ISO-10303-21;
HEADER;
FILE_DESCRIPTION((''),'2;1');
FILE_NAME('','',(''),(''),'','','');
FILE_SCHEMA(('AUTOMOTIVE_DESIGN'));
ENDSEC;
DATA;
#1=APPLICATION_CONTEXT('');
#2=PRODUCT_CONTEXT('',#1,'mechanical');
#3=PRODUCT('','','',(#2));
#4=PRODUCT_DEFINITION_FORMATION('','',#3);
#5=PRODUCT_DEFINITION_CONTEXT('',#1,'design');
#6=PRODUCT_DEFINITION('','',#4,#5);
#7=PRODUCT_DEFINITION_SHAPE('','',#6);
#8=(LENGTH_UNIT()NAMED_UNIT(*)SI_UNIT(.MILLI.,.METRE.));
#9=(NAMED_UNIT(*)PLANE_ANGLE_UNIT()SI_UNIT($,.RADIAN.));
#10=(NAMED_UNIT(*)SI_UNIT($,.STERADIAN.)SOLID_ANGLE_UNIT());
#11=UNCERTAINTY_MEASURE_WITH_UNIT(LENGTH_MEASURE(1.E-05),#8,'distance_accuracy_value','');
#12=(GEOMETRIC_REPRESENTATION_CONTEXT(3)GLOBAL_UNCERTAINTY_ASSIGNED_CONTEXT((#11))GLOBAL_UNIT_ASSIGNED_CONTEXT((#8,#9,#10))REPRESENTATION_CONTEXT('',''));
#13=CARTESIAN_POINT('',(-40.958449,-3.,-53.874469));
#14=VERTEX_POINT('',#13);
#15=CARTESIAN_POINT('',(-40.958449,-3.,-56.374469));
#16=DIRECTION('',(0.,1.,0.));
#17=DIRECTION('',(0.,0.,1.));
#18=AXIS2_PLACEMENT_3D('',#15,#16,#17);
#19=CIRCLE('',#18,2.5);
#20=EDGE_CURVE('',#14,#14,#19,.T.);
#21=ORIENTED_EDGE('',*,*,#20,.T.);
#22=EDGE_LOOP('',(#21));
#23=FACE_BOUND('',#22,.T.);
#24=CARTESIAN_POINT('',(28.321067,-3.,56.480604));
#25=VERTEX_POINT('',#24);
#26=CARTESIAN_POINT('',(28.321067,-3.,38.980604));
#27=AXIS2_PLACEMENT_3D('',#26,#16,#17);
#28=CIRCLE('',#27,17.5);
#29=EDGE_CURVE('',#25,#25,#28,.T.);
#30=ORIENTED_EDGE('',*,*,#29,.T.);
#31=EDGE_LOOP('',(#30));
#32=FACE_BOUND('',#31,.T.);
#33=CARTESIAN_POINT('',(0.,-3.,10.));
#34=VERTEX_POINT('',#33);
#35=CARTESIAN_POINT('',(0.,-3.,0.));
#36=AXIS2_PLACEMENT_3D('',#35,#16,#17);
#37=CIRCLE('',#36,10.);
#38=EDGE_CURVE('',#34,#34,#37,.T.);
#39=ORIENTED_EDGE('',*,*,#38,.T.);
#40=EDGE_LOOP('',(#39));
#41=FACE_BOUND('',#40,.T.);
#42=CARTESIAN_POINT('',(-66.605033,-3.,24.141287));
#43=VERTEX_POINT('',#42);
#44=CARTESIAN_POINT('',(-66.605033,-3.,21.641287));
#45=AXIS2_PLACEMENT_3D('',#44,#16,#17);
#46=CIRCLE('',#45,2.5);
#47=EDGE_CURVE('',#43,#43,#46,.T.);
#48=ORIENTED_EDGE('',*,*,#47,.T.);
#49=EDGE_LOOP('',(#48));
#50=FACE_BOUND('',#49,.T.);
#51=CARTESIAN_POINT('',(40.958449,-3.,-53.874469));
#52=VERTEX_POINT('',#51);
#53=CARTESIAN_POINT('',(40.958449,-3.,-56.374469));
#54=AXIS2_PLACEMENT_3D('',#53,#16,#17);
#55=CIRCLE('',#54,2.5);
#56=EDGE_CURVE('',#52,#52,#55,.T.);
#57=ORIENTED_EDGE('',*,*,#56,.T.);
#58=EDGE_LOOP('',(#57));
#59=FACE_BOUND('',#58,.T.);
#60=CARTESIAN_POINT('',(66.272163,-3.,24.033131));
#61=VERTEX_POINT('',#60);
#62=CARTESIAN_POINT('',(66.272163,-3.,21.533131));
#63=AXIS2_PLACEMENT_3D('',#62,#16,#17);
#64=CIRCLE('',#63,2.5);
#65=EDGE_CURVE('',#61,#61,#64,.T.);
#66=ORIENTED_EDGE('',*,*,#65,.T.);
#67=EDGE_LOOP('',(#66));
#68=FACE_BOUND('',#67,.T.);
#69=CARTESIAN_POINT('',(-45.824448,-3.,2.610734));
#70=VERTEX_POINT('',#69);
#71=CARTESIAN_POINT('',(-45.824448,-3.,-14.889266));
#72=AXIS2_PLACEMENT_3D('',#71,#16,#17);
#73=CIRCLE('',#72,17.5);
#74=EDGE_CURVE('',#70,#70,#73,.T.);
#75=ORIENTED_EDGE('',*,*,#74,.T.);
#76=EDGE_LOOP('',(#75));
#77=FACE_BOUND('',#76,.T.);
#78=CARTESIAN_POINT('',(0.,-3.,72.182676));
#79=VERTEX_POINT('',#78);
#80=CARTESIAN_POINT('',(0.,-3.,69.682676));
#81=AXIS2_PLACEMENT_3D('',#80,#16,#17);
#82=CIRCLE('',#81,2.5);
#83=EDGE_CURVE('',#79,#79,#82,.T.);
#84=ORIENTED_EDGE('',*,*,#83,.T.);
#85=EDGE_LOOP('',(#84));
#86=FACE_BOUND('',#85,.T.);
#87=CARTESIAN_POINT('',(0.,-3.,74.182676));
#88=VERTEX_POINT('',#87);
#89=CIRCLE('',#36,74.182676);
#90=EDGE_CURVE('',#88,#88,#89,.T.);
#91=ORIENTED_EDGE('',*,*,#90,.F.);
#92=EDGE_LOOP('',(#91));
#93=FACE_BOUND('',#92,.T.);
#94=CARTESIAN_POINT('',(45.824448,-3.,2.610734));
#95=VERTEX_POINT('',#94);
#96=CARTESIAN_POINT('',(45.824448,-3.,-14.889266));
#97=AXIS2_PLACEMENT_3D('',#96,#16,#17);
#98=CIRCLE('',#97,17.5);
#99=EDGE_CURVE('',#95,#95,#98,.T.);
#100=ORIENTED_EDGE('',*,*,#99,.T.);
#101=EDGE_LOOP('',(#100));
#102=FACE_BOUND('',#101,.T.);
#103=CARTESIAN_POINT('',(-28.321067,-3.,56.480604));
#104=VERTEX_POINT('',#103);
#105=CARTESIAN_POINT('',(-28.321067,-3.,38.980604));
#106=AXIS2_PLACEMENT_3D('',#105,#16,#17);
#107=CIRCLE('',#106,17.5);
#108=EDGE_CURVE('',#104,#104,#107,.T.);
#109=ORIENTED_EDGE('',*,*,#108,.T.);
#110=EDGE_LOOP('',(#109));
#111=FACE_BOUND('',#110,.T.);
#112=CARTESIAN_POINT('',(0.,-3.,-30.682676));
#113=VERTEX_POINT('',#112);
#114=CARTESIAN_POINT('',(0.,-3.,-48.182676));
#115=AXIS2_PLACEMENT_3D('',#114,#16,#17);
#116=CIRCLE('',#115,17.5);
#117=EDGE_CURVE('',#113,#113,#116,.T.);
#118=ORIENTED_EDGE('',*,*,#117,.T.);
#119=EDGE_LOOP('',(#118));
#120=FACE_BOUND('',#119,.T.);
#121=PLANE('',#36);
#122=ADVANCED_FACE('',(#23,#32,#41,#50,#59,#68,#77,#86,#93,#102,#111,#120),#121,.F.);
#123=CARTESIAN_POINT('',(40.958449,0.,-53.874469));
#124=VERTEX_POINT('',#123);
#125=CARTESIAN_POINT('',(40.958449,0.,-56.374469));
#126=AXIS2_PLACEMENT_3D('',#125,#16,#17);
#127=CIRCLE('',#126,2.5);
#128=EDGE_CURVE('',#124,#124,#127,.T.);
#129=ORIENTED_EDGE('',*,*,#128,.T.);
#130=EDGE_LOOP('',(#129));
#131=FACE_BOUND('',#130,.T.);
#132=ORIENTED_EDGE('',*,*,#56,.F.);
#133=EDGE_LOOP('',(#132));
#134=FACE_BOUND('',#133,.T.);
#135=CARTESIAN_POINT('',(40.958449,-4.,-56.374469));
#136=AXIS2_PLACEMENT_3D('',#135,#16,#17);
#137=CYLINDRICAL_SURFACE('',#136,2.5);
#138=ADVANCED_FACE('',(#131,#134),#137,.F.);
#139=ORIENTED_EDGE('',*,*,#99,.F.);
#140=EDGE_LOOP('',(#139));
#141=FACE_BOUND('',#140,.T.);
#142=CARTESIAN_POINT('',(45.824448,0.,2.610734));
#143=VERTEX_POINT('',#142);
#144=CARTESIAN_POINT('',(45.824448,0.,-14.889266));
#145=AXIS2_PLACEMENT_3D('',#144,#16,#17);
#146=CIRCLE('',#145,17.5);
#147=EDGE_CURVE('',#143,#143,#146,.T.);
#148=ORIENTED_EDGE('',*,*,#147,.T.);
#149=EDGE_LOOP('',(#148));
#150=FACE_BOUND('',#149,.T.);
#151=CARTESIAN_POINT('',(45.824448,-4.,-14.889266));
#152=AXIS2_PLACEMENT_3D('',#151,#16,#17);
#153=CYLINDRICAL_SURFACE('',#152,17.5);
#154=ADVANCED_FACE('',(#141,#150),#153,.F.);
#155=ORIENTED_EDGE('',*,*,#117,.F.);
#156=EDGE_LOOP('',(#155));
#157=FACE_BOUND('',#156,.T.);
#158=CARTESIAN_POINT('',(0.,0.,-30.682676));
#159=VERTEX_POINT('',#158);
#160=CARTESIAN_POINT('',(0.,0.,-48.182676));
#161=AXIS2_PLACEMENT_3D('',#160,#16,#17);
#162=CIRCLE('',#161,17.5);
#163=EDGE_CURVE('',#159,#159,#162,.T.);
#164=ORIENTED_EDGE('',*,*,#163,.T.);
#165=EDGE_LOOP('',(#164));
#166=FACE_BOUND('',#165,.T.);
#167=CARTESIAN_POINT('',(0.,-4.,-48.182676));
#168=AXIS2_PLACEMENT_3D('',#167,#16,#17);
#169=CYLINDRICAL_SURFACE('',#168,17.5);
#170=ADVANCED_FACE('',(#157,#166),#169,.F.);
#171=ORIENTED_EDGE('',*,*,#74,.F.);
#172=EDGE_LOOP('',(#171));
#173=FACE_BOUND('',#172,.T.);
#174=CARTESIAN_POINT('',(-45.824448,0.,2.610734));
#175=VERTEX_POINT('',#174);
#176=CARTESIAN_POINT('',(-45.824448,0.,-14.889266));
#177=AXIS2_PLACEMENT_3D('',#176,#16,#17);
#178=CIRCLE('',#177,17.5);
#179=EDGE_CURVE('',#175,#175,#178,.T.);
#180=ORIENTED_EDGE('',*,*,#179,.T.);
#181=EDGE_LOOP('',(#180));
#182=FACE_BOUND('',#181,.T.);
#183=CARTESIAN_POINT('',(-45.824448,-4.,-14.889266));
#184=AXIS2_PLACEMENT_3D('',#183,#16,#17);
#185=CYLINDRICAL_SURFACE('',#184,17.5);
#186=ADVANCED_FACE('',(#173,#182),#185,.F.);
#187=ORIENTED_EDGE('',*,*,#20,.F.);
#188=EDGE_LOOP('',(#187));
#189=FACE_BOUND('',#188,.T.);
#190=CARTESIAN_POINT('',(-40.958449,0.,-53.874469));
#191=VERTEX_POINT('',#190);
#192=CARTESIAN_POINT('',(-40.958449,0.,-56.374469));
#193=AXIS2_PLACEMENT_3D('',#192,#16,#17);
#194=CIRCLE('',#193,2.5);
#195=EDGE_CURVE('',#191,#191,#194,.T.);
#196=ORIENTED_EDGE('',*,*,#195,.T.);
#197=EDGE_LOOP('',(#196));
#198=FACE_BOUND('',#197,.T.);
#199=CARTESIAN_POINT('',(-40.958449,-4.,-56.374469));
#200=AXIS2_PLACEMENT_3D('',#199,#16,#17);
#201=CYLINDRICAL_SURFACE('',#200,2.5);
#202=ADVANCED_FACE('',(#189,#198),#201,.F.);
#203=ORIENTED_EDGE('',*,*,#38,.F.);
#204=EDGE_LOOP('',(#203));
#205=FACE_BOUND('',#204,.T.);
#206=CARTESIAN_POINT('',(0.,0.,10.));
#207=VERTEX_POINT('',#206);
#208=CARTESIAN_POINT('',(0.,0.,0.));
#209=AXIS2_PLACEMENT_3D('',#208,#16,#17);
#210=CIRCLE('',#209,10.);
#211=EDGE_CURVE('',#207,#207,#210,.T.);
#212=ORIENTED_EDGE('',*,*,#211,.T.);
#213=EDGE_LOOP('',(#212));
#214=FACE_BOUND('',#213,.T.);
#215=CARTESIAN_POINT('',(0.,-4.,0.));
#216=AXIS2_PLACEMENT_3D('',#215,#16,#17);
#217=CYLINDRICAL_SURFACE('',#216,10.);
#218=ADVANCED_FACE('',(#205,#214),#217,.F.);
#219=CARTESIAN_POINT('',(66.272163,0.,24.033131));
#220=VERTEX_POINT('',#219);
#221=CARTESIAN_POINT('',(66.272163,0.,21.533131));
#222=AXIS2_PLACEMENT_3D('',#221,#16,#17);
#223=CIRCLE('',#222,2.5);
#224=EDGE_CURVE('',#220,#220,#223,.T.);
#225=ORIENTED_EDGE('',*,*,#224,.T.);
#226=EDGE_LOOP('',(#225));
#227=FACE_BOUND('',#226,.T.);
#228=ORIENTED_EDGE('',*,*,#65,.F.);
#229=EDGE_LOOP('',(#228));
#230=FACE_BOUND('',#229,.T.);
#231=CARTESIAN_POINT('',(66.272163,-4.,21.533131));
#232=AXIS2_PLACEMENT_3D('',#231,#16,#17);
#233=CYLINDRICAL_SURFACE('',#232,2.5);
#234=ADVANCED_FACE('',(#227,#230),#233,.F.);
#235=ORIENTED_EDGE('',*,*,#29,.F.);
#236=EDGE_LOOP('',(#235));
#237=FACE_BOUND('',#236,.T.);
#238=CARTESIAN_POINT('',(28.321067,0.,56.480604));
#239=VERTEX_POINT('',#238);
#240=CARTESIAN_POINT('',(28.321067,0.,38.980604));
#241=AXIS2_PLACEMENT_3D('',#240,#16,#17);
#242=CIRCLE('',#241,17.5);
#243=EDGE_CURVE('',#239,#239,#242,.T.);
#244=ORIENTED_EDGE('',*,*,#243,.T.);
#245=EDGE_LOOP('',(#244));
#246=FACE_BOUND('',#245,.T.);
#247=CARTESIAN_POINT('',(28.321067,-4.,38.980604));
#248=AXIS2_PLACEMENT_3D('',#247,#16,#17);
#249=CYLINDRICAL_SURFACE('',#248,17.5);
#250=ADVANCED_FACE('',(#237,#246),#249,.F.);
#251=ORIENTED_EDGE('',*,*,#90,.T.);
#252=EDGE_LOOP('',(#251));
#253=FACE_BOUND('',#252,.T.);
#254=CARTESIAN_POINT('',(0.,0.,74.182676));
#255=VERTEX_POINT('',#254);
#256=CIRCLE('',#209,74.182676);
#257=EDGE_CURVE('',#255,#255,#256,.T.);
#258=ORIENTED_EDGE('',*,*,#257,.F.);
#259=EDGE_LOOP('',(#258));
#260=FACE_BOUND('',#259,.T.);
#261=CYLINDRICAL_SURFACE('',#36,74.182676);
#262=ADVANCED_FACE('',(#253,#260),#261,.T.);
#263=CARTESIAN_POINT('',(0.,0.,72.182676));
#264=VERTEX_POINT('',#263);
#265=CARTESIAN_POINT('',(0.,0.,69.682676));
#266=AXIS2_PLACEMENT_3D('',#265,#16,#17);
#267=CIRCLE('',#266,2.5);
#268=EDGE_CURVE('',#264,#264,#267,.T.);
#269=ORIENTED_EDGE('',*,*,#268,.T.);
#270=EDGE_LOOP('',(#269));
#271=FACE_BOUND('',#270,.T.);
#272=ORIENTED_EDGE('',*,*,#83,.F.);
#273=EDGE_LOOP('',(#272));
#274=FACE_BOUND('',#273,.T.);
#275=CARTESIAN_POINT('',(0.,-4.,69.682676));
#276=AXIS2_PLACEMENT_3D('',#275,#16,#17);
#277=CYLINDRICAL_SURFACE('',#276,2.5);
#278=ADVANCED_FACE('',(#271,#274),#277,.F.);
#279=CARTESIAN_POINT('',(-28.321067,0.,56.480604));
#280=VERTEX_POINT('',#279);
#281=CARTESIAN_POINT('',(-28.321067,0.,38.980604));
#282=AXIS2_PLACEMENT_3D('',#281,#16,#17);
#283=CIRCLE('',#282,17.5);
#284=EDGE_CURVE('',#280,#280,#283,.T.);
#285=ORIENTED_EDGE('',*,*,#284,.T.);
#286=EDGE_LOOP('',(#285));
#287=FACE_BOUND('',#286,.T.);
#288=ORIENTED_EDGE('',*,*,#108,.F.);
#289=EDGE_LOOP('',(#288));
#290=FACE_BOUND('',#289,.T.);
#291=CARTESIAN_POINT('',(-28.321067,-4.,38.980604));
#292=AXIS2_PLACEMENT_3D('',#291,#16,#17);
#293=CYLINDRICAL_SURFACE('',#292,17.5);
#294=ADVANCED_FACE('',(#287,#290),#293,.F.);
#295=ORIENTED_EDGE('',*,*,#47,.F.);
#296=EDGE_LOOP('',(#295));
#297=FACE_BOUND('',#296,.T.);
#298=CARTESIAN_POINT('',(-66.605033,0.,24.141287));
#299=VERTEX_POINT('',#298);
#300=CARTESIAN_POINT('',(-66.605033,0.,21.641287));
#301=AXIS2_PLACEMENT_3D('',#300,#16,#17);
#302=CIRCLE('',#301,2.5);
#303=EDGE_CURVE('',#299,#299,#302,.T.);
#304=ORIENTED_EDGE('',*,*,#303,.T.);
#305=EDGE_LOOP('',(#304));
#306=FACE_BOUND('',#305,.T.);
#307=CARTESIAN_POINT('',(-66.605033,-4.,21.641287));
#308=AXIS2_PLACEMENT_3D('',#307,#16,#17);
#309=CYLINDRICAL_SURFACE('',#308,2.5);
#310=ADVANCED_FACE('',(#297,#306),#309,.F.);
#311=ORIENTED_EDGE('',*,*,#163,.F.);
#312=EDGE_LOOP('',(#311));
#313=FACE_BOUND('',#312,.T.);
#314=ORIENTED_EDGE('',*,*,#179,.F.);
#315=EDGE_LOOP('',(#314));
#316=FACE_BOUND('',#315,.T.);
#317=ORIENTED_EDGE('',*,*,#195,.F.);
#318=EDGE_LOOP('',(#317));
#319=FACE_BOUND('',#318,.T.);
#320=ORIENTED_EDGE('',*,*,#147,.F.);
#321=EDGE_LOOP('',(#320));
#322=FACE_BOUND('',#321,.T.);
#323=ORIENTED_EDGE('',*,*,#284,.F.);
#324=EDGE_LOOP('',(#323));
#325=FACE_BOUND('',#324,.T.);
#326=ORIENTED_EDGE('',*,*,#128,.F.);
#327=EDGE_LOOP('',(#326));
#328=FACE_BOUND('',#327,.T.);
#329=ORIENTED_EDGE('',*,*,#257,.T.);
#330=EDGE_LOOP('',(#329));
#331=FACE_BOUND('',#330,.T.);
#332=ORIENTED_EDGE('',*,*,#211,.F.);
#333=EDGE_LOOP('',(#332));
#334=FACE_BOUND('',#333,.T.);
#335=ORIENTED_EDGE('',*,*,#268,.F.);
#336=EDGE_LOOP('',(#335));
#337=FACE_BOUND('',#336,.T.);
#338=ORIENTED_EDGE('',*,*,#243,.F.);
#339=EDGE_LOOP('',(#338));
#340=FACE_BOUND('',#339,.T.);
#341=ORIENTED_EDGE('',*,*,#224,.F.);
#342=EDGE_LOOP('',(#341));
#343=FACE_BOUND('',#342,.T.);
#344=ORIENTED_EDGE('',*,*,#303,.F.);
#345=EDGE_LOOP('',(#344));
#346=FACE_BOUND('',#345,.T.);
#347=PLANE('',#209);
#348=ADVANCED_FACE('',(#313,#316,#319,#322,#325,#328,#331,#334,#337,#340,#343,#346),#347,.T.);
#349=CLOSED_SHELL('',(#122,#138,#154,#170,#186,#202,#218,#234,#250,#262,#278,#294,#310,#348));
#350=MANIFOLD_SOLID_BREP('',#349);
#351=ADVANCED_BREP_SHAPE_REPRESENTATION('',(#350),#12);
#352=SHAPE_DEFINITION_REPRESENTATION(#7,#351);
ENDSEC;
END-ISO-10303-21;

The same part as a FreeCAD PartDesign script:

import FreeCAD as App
import Part
import Sketcher
from FreeCAD import Vector

doc = App.newDocument("Part")
body = doc.addObject("PartDesign::Body", "Body")

# Sketch on XZ plane
sketch1 = doc.addObject("Sketcher::SketchObject", "Sketch")
body.addObject(sketch1)
sketch1.AttachmentSupport = (doc.XZ_Plane, [""])
sketch1.MapMode = "FlatFace"
sketch1.addGeometry(Part.Circle(Vector(0, 0, 0), Vector(0, 0, 1), 74), False)
sketch1.addConstraint([
    Sketcher.Constraint("Coincident", 0, 3, -1, 1),
    Sketcher.Constraint("Diameter", 0, 148.365353),
])
pad1 = doc.addObject("PartDesign::Pad", "Pad")
body.addObject(pad1)
pad1.Profile = sketch1
pad1.Length = 3

# Sketch on XZ plane
sketch2 = doc.addObject("Sketcher::SketchObject", "Sketch001")
body.addObject(sketch2)
sketch2.AttachmentSupport = (doc.XZ_Plane, [""])
sketch2.MapMode = "FlatFace"
sketch2.addGeometry([
    Part.Circle(Vector(0, -48, 0), Vector(0, 0, 1), 18),  # 0
    Part.Circle(Vector(46, -15, 0), Vector(0, 0, 1), 18),  # 1
    Part.Circle(Vector(28, 39, 0), Vector(0, 0, 1), 18),  # 2
    Part.Circle(Vector(-28, 39, 0), Vector(0, 0, 1), 18),  # 3
    Part.Circle(Vector(-46, -15, 0), Vector(0, 0, 1), 18),  # 4
    Part.Circle(Vector(0, 0, 0), Vector(0, 0, 1), 10),  # 5
], False)
sketch2.addConstraint([
    Sketcher.Constraint("Coincident", 5, 3, -1, 1),
    Sketcher.Constraint("Equal", 0, 1),
    Sketcher.Constraint("Equal", 1, 2),
    Sketcher.Constraint("Equal", 2, 3),
    Sketcher.Constraint("Equal", 3, 4),
    Sketcher.Constraint("Symmetric", 2, 3, 3, 3, -2),
    Sketcher.Constraint("Symmetric", 1, 3, 4, 3, -2),
    Sketcher.Constraint("PointOnObject", 0, 3, -2),
    Sketcher.Constraint("Diameter", 0, 35.0),
    Sketcher.Constraint("Diameter", 5, 20.0),
    Sketcher.Constraint("DistanceX", -1, 1, 1, 3, 45.824448),
    Sketcher.Constraint("DistanceY", 0, 3, 1, 3, 33.29341),
    Sketcher.Constraint("DistanceX", 2, 3, 1, 3, 17.503382),
    Sketcher.Constraint("DistanceY", 1, 3, 2, 3, 53.86987),
    Sketcher.Constraint("DistanceY", 0, 3, -1, 1, 48.182676),
])
pocket1 = doc.addObject("PartDesign::Pocket", "Pocket")
body.addObject(pocket1)
pocket1.Profile = sketch2
pocket1.Length = 4
pocket1.Reversed = True

# Sketch on XZ plane
sketch3 = doc.addObject("Sketcher::SketchObject", "Sketch002")
body.addObject(sketch3)
sketch3.AttachmentSupport = (doc.XZ_Plane, [""])
sketch3.MapMode = "FlatFace"
sketch3.addGeometry([
    Part.Circle(Vector(41, -56.4, 0), Vector(0, 0, 1), 2.5),  # 0
    Part.Circle(Vector(66.3, 21.5, 0), Vector(0, 0, 1), 2.5),  # 1
    Part.Circle(Vector(0, 69.7, 0), Vector(0, 0, 1), 2.5),  # 2
    Part.Circle(Vector(-66.6, 21.6, 0), Vector(0, 0, 1), 2.5),  # 3
    Part.Circle(Vector(-41, -56.4, 0), Vector(0, 0, 1), 2.5),  # 4
], False)
sketch3.addConstraint([
    Sketcher.Constraint("Equal", 0, 1),
    Sketcher.Constraint("Equal", 1, 2),
    Sketcher.Constraint("Equal", 2, 3),
    Sketcher.Constraint("Equal", 3, 4),
    Sketcher.Constraint("Symmetric", 0, 3, 4, 3, -2),
    Sketcher.Constraint("PointOnObject", 2, 3, -2),
    Sketcher.Constraint("Diameter", 0, 5.0),
    Sketcher.Constraint("DistanceY", 0, 3, 1, 3, 77.907601),
    Sketcher.Constraint("DistanceX", 4, 3, 0, 3, 81.916899),
    Sketcher.Constraint("DistanceY", 0, 3, -1, 1, 56.374469),
    Sketcher.Constraint("DistanceY", 3, 3, 2, 3, 48.041389),
    Sketcher.Constraint("DistanceX", -1, 1, 1, 3, 66.272163),
    Sketcher.Constraint("DistanceY", -1, 1, 2, 3, 69.682676),
    Sketcher.Constraint("DistanceX", 3, 3, -1, 1, 66.605033),
])
pocket2 = doc.addObject("PartDesign::Pocket", "Pocket001")
body.addObject(pocket2)
pocket2.Profile = sketch3
pocket2.Length = 4
pocket2.Reversed = True

doc.recompute()
